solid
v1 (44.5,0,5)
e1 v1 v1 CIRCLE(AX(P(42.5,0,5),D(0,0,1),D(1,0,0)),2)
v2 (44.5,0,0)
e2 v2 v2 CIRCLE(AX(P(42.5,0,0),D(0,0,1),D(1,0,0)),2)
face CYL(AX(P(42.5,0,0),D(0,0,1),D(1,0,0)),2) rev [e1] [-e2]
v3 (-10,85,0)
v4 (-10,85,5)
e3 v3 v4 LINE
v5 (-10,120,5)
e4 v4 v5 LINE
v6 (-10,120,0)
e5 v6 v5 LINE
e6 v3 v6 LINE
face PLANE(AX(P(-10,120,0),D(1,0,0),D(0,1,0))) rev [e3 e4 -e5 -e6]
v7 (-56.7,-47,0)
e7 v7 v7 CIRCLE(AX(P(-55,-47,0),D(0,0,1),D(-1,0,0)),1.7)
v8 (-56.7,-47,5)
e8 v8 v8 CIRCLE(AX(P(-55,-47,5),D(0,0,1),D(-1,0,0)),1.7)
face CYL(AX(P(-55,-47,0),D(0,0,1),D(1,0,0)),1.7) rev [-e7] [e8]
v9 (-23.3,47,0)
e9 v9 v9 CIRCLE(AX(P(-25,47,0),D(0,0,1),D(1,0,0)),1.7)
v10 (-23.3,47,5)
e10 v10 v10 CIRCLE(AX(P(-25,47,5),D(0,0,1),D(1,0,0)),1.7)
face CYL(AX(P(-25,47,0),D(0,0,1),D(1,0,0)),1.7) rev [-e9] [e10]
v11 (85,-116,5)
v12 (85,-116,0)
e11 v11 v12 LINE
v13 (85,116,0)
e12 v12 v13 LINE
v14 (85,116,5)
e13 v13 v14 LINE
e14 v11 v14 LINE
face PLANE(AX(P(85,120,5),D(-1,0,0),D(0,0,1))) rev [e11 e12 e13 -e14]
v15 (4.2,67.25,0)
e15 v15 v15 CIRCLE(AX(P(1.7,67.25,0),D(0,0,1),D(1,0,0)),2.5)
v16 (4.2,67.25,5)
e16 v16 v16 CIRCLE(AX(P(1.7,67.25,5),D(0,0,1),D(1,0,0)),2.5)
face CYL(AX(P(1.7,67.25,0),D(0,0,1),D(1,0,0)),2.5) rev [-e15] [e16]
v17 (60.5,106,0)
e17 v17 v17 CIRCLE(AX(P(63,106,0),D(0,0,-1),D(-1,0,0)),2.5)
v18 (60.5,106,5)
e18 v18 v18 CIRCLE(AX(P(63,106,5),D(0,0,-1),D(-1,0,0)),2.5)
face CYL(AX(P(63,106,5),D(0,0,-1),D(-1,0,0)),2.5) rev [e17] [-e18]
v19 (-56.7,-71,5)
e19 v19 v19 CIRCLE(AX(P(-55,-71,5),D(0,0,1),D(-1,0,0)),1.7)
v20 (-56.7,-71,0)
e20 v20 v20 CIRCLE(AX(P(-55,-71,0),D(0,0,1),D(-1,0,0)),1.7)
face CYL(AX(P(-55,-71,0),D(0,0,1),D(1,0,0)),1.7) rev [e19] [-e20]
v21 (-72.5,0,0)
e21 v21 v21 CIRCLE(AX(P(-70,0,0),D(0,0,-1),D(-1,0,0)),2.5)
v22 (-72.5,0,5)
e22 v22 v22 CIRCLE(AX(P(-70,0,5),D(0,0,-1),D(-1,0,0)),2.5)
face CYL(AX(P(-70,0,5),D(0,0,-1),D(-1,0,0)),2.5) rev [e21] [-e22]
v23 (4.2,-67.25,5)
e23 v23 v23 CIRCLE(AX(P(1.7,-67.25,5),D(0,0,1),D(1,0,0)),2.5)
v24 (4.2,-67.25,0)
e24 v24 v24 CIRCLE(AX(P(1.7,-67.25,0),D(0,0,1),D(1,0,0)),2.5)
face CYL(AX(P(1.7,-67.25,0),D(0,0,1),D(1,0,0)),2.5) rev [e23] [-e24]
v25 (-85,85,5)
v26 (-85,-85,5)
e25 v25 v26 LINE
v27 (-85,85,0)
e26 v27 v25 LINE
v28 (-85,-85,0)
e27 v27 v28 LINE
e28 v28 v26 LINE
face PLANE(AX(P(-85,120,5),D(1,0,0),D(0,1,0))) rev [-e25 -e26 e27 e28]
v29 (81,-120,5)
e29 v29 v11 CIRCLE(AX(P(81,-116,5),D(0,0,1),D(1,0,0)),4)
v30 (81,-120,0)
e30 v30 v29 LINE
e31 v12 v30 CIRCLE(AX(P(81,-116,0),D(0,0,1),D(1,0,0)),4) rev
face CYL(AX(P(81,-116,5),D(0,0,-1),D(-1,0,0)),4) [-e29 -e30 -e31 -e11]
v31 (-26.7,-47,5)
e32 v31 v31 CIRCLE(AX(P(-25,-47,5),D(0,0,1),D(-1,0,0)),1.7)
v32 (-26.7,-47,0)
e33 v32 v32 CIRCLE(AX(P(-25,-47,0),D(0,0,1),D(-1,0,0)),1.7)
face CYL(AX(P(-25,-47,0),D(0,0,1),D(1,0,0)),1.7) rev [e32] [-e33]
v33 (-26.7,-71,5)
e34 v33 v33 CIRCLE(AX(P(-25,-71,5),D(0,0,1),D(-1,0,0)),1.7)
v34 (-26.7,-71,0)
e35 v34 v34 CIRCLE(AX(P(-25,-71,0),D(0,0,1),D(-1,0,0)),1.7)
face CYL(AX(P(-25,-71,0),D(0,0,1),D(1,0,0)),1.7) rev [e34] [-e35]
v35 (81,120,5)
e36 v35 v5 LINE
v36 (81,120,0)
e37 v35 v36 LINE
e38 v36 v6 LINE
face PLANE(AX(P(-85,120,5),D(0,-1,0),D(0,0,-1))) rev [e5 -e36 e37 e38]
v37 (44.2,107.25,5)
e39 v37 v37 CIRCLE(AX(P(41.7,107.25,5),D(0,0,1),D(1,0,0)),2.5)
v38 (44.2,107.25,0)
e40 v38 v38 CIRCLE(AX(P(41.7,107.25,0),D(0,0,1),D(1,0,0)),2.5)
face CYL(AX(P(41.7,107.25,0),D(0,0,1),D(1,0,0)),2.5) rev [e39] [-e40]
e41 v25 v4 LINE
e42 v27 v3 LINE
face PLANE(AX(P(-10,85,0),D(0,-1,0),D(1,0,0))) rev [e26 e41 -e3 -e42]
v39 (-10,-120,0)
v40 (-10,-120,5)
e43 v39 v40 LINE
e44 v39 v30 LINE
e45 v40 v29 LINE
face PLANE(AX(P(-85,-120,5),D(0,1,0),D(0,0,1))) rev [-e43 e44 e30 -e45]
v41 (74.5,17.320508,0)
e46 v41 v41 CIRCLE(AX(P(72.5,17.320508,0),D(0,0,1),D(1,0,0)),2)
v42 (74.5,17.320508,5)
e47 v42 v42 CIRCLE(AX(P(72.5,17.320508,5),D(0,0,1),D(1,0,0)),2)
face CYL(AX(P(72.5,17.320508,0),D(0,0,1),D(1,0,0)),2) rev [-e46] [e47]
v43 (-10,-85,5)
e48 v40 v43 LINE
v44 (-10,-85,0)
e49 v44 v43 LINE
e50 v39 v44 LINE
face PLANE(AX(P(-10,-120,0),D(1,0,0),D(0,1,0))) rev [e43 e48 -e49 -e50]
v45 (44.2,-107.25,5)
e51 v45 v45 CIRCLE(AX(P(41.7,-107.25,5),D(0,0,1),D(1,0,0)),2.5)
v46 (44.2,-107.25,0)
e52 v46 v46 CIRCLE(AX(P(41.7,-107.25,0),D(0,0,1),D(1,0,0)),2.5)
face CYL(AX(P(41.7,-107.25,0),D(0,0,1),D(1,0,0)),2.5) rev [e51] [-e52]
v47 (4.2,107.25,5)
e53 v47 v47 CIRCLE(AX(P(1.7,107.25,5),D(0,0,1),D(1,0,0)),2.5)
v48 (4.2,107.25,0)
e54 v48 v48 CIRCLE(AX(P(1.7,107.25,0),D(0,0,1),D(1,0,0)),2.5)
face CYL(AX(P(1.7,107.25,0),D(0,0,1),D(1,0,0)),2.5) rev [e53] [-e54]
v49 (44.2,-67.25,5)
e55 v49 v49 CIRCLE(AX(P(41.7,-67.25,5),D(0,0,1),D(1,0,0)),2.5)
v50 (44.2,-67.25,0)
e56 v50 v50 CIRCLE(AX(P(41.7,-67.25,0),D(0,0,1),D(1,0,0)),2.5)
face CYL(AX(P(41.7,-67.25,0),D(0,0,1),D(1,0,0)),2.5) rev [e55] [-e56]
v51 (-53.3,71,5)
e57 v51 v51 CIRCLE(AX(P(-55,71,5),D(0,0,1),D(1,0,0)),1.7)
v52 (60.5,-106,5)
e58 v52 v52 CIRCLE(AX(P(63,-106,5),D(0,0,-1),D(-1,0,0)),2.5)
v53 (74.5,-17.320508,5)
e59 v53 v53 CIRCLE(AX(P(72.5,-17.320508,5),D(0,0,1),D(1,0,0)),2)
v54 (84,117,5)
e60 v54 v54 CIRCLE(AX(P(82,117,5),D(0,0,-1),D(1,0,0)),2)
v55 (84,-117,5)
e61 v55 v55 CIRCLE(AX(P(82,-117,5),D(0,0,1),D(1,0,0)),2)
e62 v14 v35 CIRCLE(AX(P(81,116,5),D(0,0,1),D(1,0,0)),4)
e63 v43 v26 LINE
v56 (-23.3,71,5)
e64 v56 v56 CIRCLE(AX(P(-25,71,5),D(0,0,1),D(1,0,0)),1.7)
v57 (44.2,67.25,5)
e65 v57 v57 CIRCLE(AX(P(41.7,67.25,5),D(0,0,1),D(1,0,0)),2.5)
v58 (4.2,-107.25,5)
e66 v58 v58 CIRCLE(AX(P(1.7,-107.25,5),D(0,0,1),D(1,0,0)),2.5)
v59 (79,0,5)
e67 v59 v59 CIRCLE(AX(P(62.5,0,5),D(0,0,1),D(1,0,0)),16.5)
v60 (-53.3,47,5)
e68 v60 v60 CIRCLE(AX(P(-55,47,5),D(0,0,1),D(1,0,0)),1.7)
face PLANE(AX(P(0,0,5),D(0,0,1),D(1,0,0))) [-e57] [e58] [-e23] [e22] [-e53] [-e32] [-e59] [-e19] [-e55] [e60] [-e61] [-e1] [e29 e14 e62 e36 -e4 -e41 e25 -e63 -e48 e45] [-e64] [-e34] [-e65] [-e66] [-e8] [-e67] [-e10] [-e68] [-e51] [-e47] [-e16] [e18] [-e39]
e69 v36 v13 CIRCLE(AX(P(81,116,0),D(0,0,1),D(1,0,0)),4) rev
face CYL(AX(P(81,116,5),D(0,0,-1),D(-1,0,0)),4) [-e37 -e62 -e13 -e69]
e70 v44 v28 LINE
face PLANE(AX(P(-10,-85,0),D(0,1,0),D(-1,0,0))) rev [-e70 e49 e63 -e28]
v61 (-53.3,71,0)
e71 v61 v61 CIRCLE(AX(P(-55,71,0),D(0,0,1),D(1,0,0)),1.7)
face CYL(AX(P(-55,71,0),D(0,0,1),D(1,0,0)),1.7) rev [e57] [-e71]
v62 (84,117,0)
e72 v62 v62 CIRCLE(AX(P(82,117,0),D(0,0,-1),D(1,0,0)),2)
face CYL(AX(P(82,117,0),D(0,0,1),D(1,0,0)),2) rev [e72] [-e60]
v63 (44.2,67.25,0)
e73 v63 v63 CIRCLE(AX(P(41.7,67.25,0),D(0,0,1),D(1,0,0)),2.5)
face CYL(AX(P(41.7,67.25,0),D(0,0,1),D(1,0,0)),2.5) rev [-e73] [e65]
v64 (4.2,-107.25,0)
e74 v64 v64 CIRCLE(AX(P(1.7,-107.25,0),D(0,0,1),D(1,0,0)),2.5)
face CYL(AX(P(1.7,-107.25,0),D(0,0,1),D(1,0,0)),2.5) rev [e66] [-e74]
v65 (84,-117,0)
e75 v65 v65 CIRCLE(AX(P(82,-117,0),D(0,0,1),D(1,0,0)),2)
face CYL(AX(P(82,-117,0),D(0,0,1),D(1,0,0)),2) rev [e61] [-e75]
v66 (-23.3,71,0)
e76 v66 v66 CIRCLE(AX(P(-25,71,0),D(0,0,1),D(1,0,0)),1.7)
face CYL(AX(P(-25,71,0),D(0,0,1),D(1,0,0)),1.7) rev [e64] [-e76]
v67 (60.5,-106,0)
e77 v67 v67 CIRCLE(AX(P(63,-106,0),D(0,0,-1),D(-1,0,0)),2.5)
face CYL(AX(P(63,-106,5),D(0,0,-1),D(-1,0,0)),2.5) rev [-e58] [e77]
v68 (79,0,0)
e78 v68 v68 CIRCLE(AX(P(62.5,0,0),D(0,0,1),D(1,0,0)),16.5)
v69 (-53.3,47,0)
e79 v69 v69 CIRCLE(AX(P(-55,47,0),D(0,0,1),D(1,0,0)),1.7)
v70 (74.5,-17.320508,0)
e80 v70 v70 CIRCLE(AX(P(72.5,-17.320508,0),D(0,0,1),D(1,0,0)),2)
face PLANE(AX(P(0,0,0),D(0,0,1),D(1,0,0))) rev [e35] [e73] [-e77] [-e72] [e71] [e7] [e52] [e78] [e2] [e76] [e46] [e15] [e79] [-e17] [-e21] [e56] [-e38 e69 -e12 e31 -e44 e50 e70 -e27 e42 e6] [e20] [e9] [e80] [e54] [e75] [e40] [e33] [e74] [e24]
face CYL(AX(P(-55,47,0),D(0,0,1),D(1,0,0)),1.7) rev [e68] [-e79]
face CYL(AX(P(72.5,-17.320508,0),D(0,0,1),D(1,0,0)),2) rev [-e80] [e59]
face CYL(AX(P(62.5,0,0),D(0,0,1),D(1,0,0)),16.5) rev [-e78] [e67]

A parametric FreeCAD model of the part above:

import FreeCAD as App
import Part
import Sketcher
from FreeCAD import Vector


def edges_at(feature, points):
    """Names of the edges that pass closest to the given points."""
    edges = feature.Shape.Edges
    near = lambda p: min(range(len(edges)), key=lambda i: edges[i].distToShape(Part.Vertex(*p))[0])
    return sorted({f"Edge{near(p) + 1}" for p in points})

doc = App.newDocument("Part")
body = doc.addObject("PartDesign::Body", "Body")

# Sketch on XY plane
sketch1 = doc.addObject("Sketcher::SketchObject", "Sketch")
body.addObject(sketch1)
sketch1.AttachmentSupport = (doc.XY_Plane, [""])
sketch1.MapMode = "FlatFace"
sketch1.addGeometry(Part.LineSegment(Vector(-85, 120, 0), Vector(-85, -120, 0)), False)
sketch1.addGeometry(Part.LineSegment(Vector(-85, -120, 0), Vector(85, -120, 0)), False)
sketch1.addGeometry(Part.LineSegment(Vector(85, -120, 0), Vector(85, 120, 0)), False)
sketch1.addGeometry(Part.LineSegment(Vector(85, 120, 0), Vector(-85, 120, 0)), False)
sketch1.addConstraint(Sketcher.Constraint("Coincident", 0, 2, 1, 1))
sketch1.addConstraint(Sketcher.Constraint("Coincident", 1, 2, 2, 1))
sketch1.addConstraint(Sketcher.Constraint("Coincident", 2, 2, 3, 1))
sketch1.addConstraint(Sketcher.Constraint("Coincident", 3, 2, 0, 1))
sketch1.addConstraint(Sketcher.Constraint("Vertical", 0))
sketch1.addConstraint(Sketcher.Constraint("Horizontal", 1))
sketch1.addConstraint(Sketcher.Constraint("Vertical", 2))
sketch1.addConstraint(Sketcher.Constraint("Horizontal", 3))
sketch1.addConstraint(Sketcher.Constraint("Symmetric", 0, 2, 2, 2, -1, 1))
sketch1.addConstraint(Sketcher.Constraint("DistanceX", 1, 1, 1, 2, 170.0))
sketch1.addConstraint(Sketcher.Constraint("DistanceY", 0, 2, 0, 1, 240.0))
pad1 = doc.addObject("PartDesign::Pad", "Pad")
body.addObject(pad1)
pad1.Profile = sketch1
pad1.Length = 5

# Sketch on XY plane
sketch2 = doc.addObject("Sketcher::SketchObject", "Sketch001")
body.addObject(sketch2)
sketch2.AttachmentSupport = (doc.XY_Plane, [""])
sketch2.MapMode = "FlatFace"
sketch2.AttachmentOffset = App.Placement(Vector(0, 0, 5), App.Rotation())
sketch2.addGeometry(Part.Circle(Vector(62, 0, 0), Vector(0, 0, 1), 16), False)
sketch2.addConstraint(Sketcher.Constraint("PointOnObject", 0, 3, -1))
sketch2.addConstraint(Sketcher.Constraint("Diameter", 0, 33.0))
sketch2.addConstraint(Sketcher.Constraint("DistanceX", -1, 1, 0, 3, 62.5))
pocket1 = doc.addObject("PartDesign::Pocket", "Pocket")
body.addObject(pocket1)
pocket1.Profile = sketch2
pocket1.Type = "ThroughAll"

# Sketch on XY plane
sketch3 = doc.addObject("Sketcher::SketchObject", "Sketch002")
body.addObject(sketch3)
sketch3.AttachmentSupport = (doc.XY_Plane, [""])
sketch3.MapMode = "FlatFace"
sketch3.AttachmentOffset = App.Placement(Vector(0, 0, 5), App.Rotation())
sketch3.addGeometry(Part.Circle(Vector(72.5, -17.3, 0), Vector(0, 0, 1), 2), False)
sketch3.addGeometry(Part.Circle(Vector(72.5, 17.3, 0), Vector(0, 0, 1), 2), False)
sketch3.addGeometry(Part.Circle(Vector(42.5, 0, 0), Vector(0, 0, 1), 2), False)
sketch3.addConstraint(Sketcher.Constraint("Equal", 0, 1))
sketch3.addConstraint(Sketcher.Constraint("Equal", 1, 2))
sketch3.addConstraint(Sketcher.Constraint("Symmetric", 0, 3, 1, 3, -1))
sketch3.addConstraint(Sketcher.Constraint("PointOnObject", 2, 3, -1))
sketch3.addConstraint(Sketcher.Constraint("Diameter", 0, 4.0))
sketch3.addConstraint(Sketcher.Constraint("DistanceX", 2, 3, 0, 3, 30.0))
sketch3.addConstraint(Sketcher.Constraint("DistanceX", -1, 1, 0, 3, 72.5))
sketch3.addConstraint(Sketcher.Constraint("DistanceY", 0, 3, -1, 1, 17.320508))
pocket2 = doc.addObject("PartDesign::Pocket", "Pocket001")
body.addObject(pocket2)
pocket2.Profile = sketch3
pocket2.Type = "ThroughAll"

# Sketch on XY plane
sketch4 = doc.addObject("Sketcher::SketchObject", "Sketch003")
body.addObject(sketch4)
sketch4.AttachmentSupport = (doc.XY_Plane, [""])
sketch4.MapMode = "FlatFace"
sketch4.AttachmentOffset = App.Placement(Vector(0, 0, 5), App.Rotation())
sketch4.addGeometry(Part.Circle(Vector(-25, 47, 0), Vector(0, 0, 1), 1.7), False)
sketch4.addGeometry(Part.Circle(Vector(-25, 71, 0), Vector(0, 0, 1), 1.7), False)
sketch4.addGeometry(Part.Circle(Vector(-55, 47, 0), Vector(0, 0, 1), 1.7), False)
sketch4.addGeometry(Part.Circle(Vector(-55, 71, 0), Vector(0, 0, 1), 1.7), False)
sketch4.addGeometry(Part.Circle(Vector(-55, -71, 0), Vector(0, 0, 1), 1.7), False)
sketch4.addGeometry(Part.Circle(Vector(-25, -71, 0), Vector(0, 0, 1), 1.7), False)
sketch4.addGeometry(Part.Circle(Vector(-55, -47, 0), Vector(0, 0, 1), 1.7), False)
sketch4.addGeometry(Part.Circle(Vector(-25, -47, 0), Vector(0, 0, 1), 1.7), False)
sketch4.addConstraint(Sketcher.Constraint("Equal", 0, 1))
sketch4.addConstraint(Sketcher.Constraint("Equal", 1, 2))
sketch4.addConstraint(Sketcher.Constraint("Equal", 2, 3))
sketch4.addConstraint(Sketcher.Constraint("Equal", 3, 4))
sketch4.addConstraint(Sketcher.Constraint("Equal", 4, 5))
sketch4.addConstraint(Sketcher.Constraint("Equal", 5, 6))
sketch4.addConstraint(Sketcher.Constraint("Equal", 6, 7))
sketch4.addConstraint(Sketcher.Constraint("Symmetric", 3, 3, 4, 3, -1))
sketch4.addConstraint(Sketcher.Constraint("Symmetric", 1, 3, 5, 3, -1))
sketch4.addConstraint(Sketcher.Constraint("Symmetric", 2, 3, 6, 3, -1))
sketch4.addConstraint(Sketcher.Constraint("Symmetric", 0, 3, 7, 3, -1))
sketch4.addConstraint(Sketcher.Constraint("Horizontal", 0, 3, 2, 3))
sketch4.addConstraint(Sketcher.Constraint("Horizontal", 1, 3, 3, 3))
sketch4.addConstraint(Sketcher.Constraint("Vertical", 0, 3, 1, 3))
sketch4.addConstraint(Sketcher.Constraint("Vertical", 2, 3, 3, 3))
sketch4.addConstraint(Sketcher.Constraint("Diameter", 0, 3.4))
sketch4.addConstraint(Sketcher.Constraint("DistanceX", 0, 3, -1, 1, 25.0))
sketch4.addConstraint(Sketcher.Constraint("DistanceY", -1, 1, 0, 3, 47.0))
sketch4.addConstraint(Sketcher.Constraint("DistanceY", -1, 1, 1, 3, 71.0))
sketch4.addConstraint(Sketcher.Constraint("DistanceX", 2, 3, -1, 1, 55.0))
pocket3 = doc.addObject("PartDesign::Pocket", "Pocket002")
body.addObject(pocket3)
pocket3.Profile = sketch4
pocket3.Type = "ThroughAll"

# Sketch on XY plane
sketch5 = doc.addObject("Sketcher::SketchObject", "Sketch004")
body.addObject(sketch5)
sketch5.AttachmentSupport = (doc.XY_Plane, [""])
sketch5.MapMode = "FlatFace"
sketch5.AttachmentOffset = App.Placement(Vector(0, 0, 5), App.Rotation())
sketch5.addGeometry(Part.LineSegment(Vector(-85, 120, 0), Vector(-85, 85, 0)), False)
sketch5.addGeometry(Part.LineSegment(Vector(-85, 85, 0), Vector(-10, 85, 0)), False)
sketch5.addGeometry(Part.LineSegment(Vector(-10, 85, 0), Vector(-10, 120, 0)), False)
sketch5.addGeometry(Part.LineSegment(Vector(-10, 120, 0), Vector(-85, 120, 0)), False)
sketch5.addGeometry(Part.LineSegment(Vector(-85, -85, 0), Vector(-85, -120, 0)), False)
sketch5.addGeometry(Part.LineSegment(Vector(-85, -120, 0), Vector(-10, -120, 0)), False)
sketch5.addGeometry(Part.LineSegment(Vector(-10, -120, 0), Vector(-10, -85, 0)), False)
sketch5.addGeometry(Part.LineSegment(Vector(-10, -85, 0), Vector(-85, -85, 0)), False)
sketch5.addConstraint(Sketcher.Constraint("Coincident", 0, 2, 1, 1))
sketch5.addConstraint(Sketcher.Constraint("Coincident", 1, 2, 2, 1))
sketch5.addConstraint(Sketcher.Constraint("Coincident", 2, 2, 3, 1))
sketch5.addConstraint(Sketcher.Constraint("Coincident", 3, 2, 0, 1))
sketch5.addConstraint(Sketcher.Constraint("Coincident", 4, 2, 5, 1))
sketch5.addConstraint(Sketcher.Constraint("Coincident", 5, 2, 6, 1))
sketch5.addConstraint(Sketcher.Constraint("Coincident", 6, 2, 7, 1))
sketch5.addConstraint(Sketcher.Constraint("Coincident", 7, 2, 4, 1))
sketch5.addConstraint(Sketcher.Constraint("Vertical", 0))
sketch5.addConstraint(Sketcher.Constraint("Horizontal", 1))
sketch5.addConstraint(Sketcher.Constraint("Vertical", 2))
sketch5.addConstraint(Sketcher.Constraint("Horizontal", 3))
sketch5.addConstraint(Sketcher.Constraint("Vertical", 4))
sketch5.addConstraint(Sketcher.Constraint("Horizontal", 5))
sketch5.addConstraint(Sketcher.Constraint("Vertical", 6))
sketch5.addConstraint(Sketcher.Constraint("Horizontal", 7))
sketch5.addConstraint(Sketcher.Constraint("Symmetric", 3, 2, 4, 2, -1))
sketch5.addConstraint(Sketcher.Constraint("Symmetric", 1, 2, 6, 2, -1))
sketch5.addConstraint(Sketcher.Constraint("DistanceX", 1, 1, 1, 2, 75.0))
sketch5.addConstraint(Sketcher.Constraint("DistanceY", 0, 2, 0, 1, 35.0))
sketch5.addConstraint(Sketcher.Constraint("DistanceX", 0, 2, -1, 1, 85.0))
sketch5.addConstraint(Sketcher.Constraint("DistanceY", -1, 1, 0, 2, 85.0))
pocket4 = doc.addObject("PartDesign::Pocket", "Pocket003")
body.addObject(pocket4)
pocket4.Profile = sketch5
pocket4.Type = "ThroughAll"
doc.recompute()

fillet = doc.addObject("PartDesign::Fillet", "Fillet")
body.addObject(fillet)
fillet.Base = (pocket4, edges_at(pocket4, [(85, -120, 2.5)]))
fillet.Radius = 4

# Sketch on XY plane
sketch6 = doc.addObject("Sketcher::SketchObject", "Sketch005")
body.addObject(sketch6)
sketch6.AttachmentSupport = (doc.XY_Plane, [""])
sketch6.MapMode = "FlatFace"
sketch6.AttachmentOffset = App.Placement(Vector(0, 0, 5), App.Rotation())
sketch6.addGeometry(Part.Circle(Vector(82, -117, 0), Vector(0, 0, 1), 2), False)
sketch6.addConstraint(Sketcher.Constraint("Diameter", 0, 4.0))
sketch6.addConstraint(Sketcher.Constraint("DistanceX", -1, 1, 0, 3, 82.0))
sketch6.addConstraint(Sketcher.Constraint("DistanceY", 0, 3, -1, 1, 117.0))
pocket5 = doc.addObject("PartDesign::Pocket", "Pocket004")
body.addObject(pocket5)
pocket5.Profile = sketch6
pocket5.Type = "ThroughAll"
doc.recompute()

mirrored = doc.addObject("PartDesign::Mirrored", "Mirrored")
body.addObject(mirrored)
mirrored.Originals = [pocket5]
mirrored.MirrorPlane = (doc.XZ_Plane, [""])
body.Tip = mirrored
doc.recompute()

fillet2 = doc.addObject("PartDesign::Fillet", "Fillet001")
body.addObject(fillet2)
fillet2.Base = (mirrored, edges_at(mirrored, [(85, 120, 2.5)]))
fillet2.Radius = 4

# Sketch on XY plane
sketch7 = doc.addObject("Sketcher::SketchObject", "Sketch006")
body.addObject(sketch7)
sketch7.AttachmentSupport = (doc.XY_Plane, [""])
sketch7.MapMode = "FlatFace"
sketch7.AttachmentOffset = App.Placement(Vector(0, 0, 5), App.Rotation())
sketch7.addGeometry(Part.Circle(Vector(41.7, 107.2, 0), Vector(0, 0, 1), 2.5), False)
sketch7.addGeometry(Part.Circle(Vector(41.7, 67.2, 0), Vector(0, 0, 1), 2.5), False)
sketch7.addGeometry(Part.Circle(Vector(1.7, 67.2, 0), Vector(0, 0, 1), 2.5), False)
sketch7.addGeometry(Part.Circle(Vector(1.7, 107.2, 0), Vector(0, 0, 1), 2.5), False)
sketch7.addGeometry(Part.Circle(Vector(41.7, -107.2, 0), Vector(0, 0, 1), 2.5), False)
sketch7.addGeometry(Part.Circle(Vector(1.7, -107.2, 0), Vector(0, 0, 1), 2.5), False)
sketch7.addGeometry(Part.Circle(Vector(1.7, -67.2, 0), Vector(0, 0, 1), 2.5), False)
sketch7.addGeometry(Part.Circle(Vector(41.7, -67.2, 0), Vector(0, 0, 1), 2.5), False)
sketch7.addConstraint(Sketcher.Constraint("Equal", 0, 1))
sketch7.addConstraint(Sketcher.Constraint("Equal", 1, 2))
sketch7.addConstraint(Sketcher.Constraint("Equal", 2, 3))
sketch7.addConstraint(Sketcher.Constraint("Equal", 3, 4))
sketch7.addConstraint(Sketcher.Constraint("Equal", 4, 5))
sketch7.addConstraint(Sketcher.Constraint("Equal", 5, 6))
sketch7.addConstraint(Sketcher.Constraint("Equal", 6, 7))
sketch7.addConstraint(Sketcher.Constraint("Symmetric", 0, 3, 4, 3, -1))
sketch7.addConstraint(Sketcher.Constraint("Symmetric", 3, 3, 5, 3, -1))
sketch7.addConstraint(Sketcher.Constraint("Symmetric", 2, 3, 6, 3, -1))
sketch7.addConstraint(Sketcher.Constraint("Symmetric", 1, 3, 7, 3, -1))
sketch7.addConstraint(Sketcher.Constraint("Horizontal", 1, 3, 2, 3))
sketch7.addConstraint(Sketcher.Constraint("Horizontal", 0, 3, 3, 3))
sketch7.addConstraint(Sketcher.Constraint("Vertical", 0, 3, 1, 3))
sketch7.addConstraint(Sketcher.Constraint("Vertical", 2, 3, 3, 3))
sketch7.addConstraint(Sketcher.Constraint("Diameter", 0, 5.0))
sketch7.addConstraint(Sketcher.Constraint("DistanceY", 1, 3, 0, 3, 40.0))
sketch7.addConstraint(Sketcher.Constraint("DistanceX", 2, 3, 1, 3, 40.0))
sketch7.addConstraint(Sketcher.Constraint("DistanceX", -1, 1, 0, 3, 41.7))
sketch7.addConstraint(Sketcher.Constraint("DistanceY", 4, 3, 1, 3, 174.5))
pocket6 = doc.addObject("PartDesign::Pocket", "Pocket005")
body.addObject(pocket6)
pocket6.Profile = sketch7
pocket6.Type = "ThroughAll"

# Sketch on XY plane
sketch8 = doc.addObject("Sketcher::SketchObject", "Sketch007")
body.addObject(sketch8)
sketch8.AttachmentSupport = (doc.XY_Plane, [""])
sketch8.MapMode = "FlatFace"
sketch8.addGeometry(Part.Circle(Vector(63, 106, 0), Vector(0, 0, 1), 2.5), False)
sketch8.addGeometry(Part.Circle(Vector(63, -106, 0), Vector(0, 0, 1), 2.5), False)
sketch8.addGeometry(Part.Circle(Vector(-70, 0, 0), Vector(0, 0, 1), 2.5), False)
sketch8.addConstraint(Sketcher.Constraint("Equal", 0, 1))
sketch8.addConstraint(Sketcher.Constraint("Equal", 1, 2))
sketch8.addConstraint(Sketcher.Constraint("Symmetric", 0, 3, 1, 3, -1))
sketch8.addConstraint(Sketcher.Constraint("PointOnObject", 2, 3, -1))
sketch8.addConstraint(Sketcher.Constraint("Diameter", 0, 5.0))
sketch8.addConstraint(Sketcher.Constraint("DistanceX", -1, 1, 0, 3, 63.0))
sketch8.addConstraint(Sketcher.Constraint("DistanceY", -1, 1, 0, 3, 106.0))
sketch8.addConstraint(Sketcher.Constraint("DistanceX", 2, 3, -1, 1, 70.0))
pocket7 = doc.addObject("PartDesign::Pocket", "Pocket006")
body.addObject(pocket7)
pocket7.Profile = sketch8
pocket7.Type = "ThroughAll"
pocket7.Reversed = True

doc.recompute()
